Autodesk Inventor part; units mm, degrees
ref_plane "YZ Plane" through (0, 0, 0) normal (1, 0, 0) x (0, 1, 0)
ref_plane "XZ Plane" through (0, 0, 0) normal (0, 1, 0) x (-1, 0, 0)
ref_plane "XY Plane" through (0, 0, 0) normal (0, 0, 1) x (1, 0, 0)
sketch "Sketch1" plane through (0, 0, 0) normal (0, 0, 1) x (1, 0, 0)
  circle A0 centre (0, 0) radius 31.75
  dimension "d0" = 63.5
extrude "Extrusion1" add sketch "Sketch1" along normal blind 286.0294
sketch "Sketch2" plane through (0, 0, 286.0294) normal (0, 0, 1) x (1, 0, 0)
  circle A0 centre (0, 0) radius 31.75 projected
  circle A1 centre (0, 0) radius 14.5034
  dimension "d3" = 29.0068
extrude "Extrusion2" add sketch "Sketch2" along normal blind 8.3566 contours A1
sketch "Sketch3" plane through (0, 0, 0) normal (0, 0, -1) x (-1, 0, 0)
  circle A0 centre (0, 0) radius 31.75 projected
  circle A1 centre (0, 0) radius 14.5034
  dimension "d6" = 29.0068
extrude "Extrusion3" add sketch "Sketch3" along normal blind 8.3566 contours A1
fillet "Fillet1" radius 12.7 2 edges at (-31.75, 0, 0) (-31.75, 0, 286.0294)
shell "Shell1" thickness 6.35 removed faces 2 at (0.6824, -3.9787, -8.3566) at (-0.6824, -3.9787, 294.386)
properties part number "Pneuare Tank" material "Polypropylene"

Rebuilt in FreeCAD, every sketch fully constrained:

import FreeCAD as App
import Part
import Sketcher
Q = App.Units.Quantity


def edges_at(feature, points):
    """Names of the edges that pass closest to the given points."""
    edges = feature.Shape.Edges
    near = lambda p: min(range(len(edges)), key=lambda i: edges[i].distToShape(Part.Vertex(*p))[0])
    return sorted({f"Edge{near(p) + 1}" for p in points})


def faces_at(feature, points):
    """Names of the faces that lie closest to the given points."""
    faces = feature.Shape.Faces
    near = lambda p: min(range(len(faces)), key=lambda i: faces[i].distToShape(Part.Vertex(*p))[0])
    return sorted({f"Face{near(p) + 1}" for p in points})

doc = App.newDocument("Part")
body = doc.addObject("PartDesign::Body", "Body")

sketch1 = body.newObject("Sketcher::SketchObject", "Sketch")
sketch1.AttachmentSupport = (doc.getObject("XY_Plane"), [""])
sketch1.MapMode = "FlatFace"
sketch1.addGeometry(Part.Circle(App.Vector(0, 0, 0), App.Vector(0, 0, 1), 32), False)
sketch1.addConstraint([
    Sketcher.Constraint("Coincident", 0, 3, -1, 1),
    Sketcher.Constraint("Diameter", 0, Q("2.5 in")),
])
pad1 = body.newObject("PartDesign::Pad", "Pad")
pad1.Profile = sketch1
pad1.Length = Q("11.261 in")

sketch2 = body.newObject("Sketcher::SketchObject", "Sketch001")
sketch2.AttachmentSupport = (doc.getObject("XY_Plane"), [""])
sketch2.MapMode = "FlatFace"
sketch2.AttachmentOffset = App.Placement(App.Vector(0, 0, 11.261 * 25.4), App.Rotation())
sketch2.addGeometry(Part.Circle(App.Vector(0, 0, 0), App.Vector(0, 0, 1), 15), False)
sketch2.addConstraint([
    Sketcher.Constraint("Coincident", 0, 3, -1, 1),
    Sketcher.Constraint("Diameter", 0, Q("1.142 in")),
])
pad2 = body.newObject("PartDesign::Pad", "Pad001")
pad2.Profile = sketch2
pad2.Length = Q("0.329 in")

sketch3 = body.newObject("Sketcher::SketchObject", "Sketch002")
sketch3.AttachmentSupport = (doc.getObject("XY_Plane"), [""])
sketch3.MapMode = "FlatFace"
sketch3.addGeometry(Part.Circle(App.Vector(0, 0, 0), App.Vector(0, 0, 1), 15), False)
sketch3.addConstraint([
    Sketcher.Constraint("Coincident", 0, 3, -1, 1),
    Sketcher.Constraint("Diameter", 0, Q("1.142 in")),
])
pad3 = body.newObject("PartDesign::Pad", "Pad002")
pad3.Profile = sketch3
pad3.Length = Q("0.329 in")
pad3.Reversed = True
doc.recompute()

fillet = body.newObject("PartDesign::Fillet", "Fillet")
fillet.Base = (pad3, edges_at(pad3, [(-31.75, 0, 0), (-31.75, 0, 286.029)]))
fillet.Radius = Q("0.5 in")
doc.recompute()

thickness = body.newObject("PartDesign::Thickness", "Thickness")
thickness.Base = (fillet, faces_at(fillet, [(0.682, -3.979, -8.357), (-0.682, -3.979, 294.386)]))
thickness.Value = Q("0.25 in")
thickness.Reversed = True
thickness.Join = "Intersection"

doc.recompute()
